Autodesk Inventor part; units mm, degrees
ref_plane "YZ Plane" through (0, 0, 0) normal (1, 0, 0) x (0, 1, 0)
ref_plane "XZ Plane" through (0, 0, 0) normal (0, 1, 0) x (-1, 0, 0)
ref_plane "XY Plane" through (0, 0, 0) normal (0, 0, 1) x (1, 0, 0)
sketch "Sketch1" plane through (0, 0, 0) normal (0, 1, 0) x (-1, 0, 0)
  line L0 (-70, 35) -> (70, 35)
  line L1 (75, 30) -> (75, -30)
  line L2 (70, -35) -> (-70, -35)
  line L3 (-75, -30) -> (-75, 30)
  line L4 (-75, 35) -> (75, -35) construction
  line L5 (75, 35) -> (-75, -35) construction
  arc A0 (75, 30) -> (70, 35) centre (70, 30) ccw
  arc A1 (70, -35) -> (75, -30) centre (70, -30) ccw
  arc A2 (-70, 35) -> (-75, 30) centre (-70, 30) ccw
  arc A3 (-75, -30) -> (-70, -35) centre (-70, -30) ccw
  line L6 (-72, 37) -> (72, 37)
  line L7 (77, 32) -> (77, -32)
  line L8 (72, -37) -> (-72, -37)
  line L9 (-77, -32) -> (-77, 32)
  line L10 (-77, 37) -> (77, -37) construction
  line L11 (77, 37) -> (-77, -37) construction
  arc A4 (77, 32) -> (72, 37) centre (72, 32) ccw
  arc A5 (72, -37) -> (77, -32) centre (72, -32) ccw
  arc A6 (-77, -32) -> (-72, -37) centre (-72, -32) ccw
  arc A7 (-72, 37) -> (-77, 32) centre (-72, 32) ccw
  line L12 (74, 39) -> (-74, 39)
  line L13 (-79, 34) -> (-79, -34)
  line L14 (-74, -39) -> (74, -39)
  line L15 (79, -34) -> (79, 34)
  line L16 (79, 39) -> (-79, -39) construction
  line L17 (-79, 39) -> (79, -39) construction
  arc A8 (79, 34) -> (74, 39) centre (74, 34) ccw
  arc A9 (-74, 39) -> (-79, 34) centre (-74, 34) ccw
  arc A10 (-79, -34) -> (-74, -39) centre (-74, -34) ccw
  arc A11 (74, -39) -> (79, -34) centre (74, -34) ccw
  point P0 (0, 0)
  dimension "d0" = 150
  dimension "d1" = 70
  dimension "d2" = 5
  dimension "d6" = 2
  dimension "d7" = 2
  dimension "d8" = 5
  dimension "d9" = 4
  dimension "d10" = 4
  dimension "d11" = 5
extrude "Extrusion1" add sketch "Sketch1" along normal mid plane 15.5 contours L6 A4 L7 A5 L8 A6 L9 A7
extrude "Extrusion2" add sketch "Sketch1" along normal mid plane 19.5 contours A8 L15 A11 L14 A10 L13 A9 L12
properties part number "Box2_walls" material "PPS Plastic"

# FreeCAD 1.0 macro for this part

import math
import FreeCAD as App
import Part
import Sketcher

V = App.Vector

doc = App.newDocument("Part")
params = doc.addObject("Spreadsheet::Sheet", "Params")
for row, (alias, value) in enumerate([
    ("sketch1_radius", "5 mm"),
    ("sketch1_height", "64 mm"),
    ("pad1_length", "15.5 mm"),
    ("sketch2_radius", "5 mm"),
    ("sketch2_width", "148 mm"),
    ("sketch2_height", "68 mm"),
    ("pad2_length", "19.5 mm"),
], start=1):
    params.set(f"A{row}", alias)
    params.set(f"B{row}", "=" + value)
    params.setAlias(f"B{row}", alias)

body = doc.addObject("PartDesign::Body", "Body")

sketch1 = body.newObject("Sketcher::SketchObject", "Sketch")
sketch1.AttachmentSupport = (doc.getObject("XZ_Plane"), [""])
sketch1.MapMode = "FlatFace"
sketch1.addGeometry(Part.LineSegment(V(-72, 37, 0), V(72, 37, 0)), False)
sketch1.addGeometry(Part.ArcOfCircle(Part.Circle(V(72, 32, 0), V(0, 0, 1), 5), math.radians(0), math.radians(90)), False)
sketch1.addGeometry(Part.LineSegment(V(77, 32, 0), V(77, -32, 0)), False)
sketch1.addGeometry(Part.ArcOfCircle(Part.Circle(V(72, -32, 0), V(0, 0, 1), 5), math.radians(-90), math.radians(0)), False)
sketch1.addGeometry(Part.LineSegment(V(72, -37, 0), V(-72, -37, 0)), False)
sketch1.addGeometry(Part.ArcOfCircle(Part.Circle(V(-72, -32, 0), V(0, 0, 1), 5), math.radians(180), math.radians(270)), False)
sketch1.addGeometry(Part.LineSegment(V(-77, -32, 0), V(-77, 32, 0)), False)
sketch1.addGeometry(Part.ArcOfCircle(Part.Circle(V(-72, 32, 0), V(0, 0, 1), 5), math.radians(90), math.radians(180)), False)
sketch1.addGeometry(Part.ArcOfCircle(Part.Circle(V(70, 30, 0), V(0, 0, 1), 5), math.radians(0), math.radians(90)), False)
sketch1.addGeometry(Part.LineSegment(V(70, 35, 0), V(-70, 35, 0)), False)
sketch1.addGeometry(Part.ArcOfCircle(Part.Circle(V(-70, 30, 0), V(0, 0, 1), 5), math.radians(90), math.radians(180)), False)
sketch1.addGeometry(Part.LineSegment(V(-75, 30, 0), V(-75, -30, 0)), False)
sketch1.addGeometry(Part.ArcOfCircle(Part.Circle(V(-70, -30, 0), V(0, 0, 1), 5), math.radians(180), math.radians(270)), False)
sketch1.addGeometry(Part.LineSegment(V(-70, -35, 0), V(70, -35, 0)), False)
sketch1.addGeometry(Part.ArcOfCircle(Part.Circle(V(70, -30, 0), V(0, 0, 1), 5), math.radians(-90), math.radians(0)), False)
sketch1.addGeometry(Part.LineSegment(V(75, -30, 0), V(75, 30, 0)), False)
sketch1.addConstraint(Sketcher.Constraint("Tangent", 0, 2, 1, 2))
sketch1.addConstraint(Sketcher.Constraint("Tangent", 1, 1, 2, 1))
sketch1.addConstraint(Sketcher.Constraint("Tangent", 2, 2, 3, 2))
sketch1.addConstraint(Sketcher.Constraint("Tangent", 3, 1, 4, 1))
sketch1.addConstraint(Sketcher.Constraint("Tangent", 4, 2, 5, 2))
sketch1.addConstraint(Sketcher.Constraint("Tangent", 5, 1, 6, 1))
sketch1.addConstraint(Sketcher.Constraint("Tangent", 6, 2, 7, 2))
sketch1.addConstraint(Sketcher.Constraint("Tangent", 7, 1, 0, 1))
sketch1.addConstraint(Sketcher.Constraint("Tangent", 8, 2, 9, 1))
sketch1.addConstraint(Sketcher.Constraint("Tangent", 9, 2, 10, 1))
sketch1.addConstraint(Sketcher.Constraint("Tangent", 10, 2, 11, 1))
sketch1.addConstraint(Sketcher.Constraint("Tangent", 11, 2, 12, 1))
sketch1.addConstraint(Sketcher.Constraint("Tangent", 12, 2, 13, 1))
sketch1.addConstraint(Sketcher.Constraint("Tangent", 13, 2, 14, 1))
sketch1.addConstraint(Sketcher.Constraint("Tangent", 14, 2, 15, 1))
sketch1.addConstraint(Sketcher.Constraint("Tangent", 15, 2, 8, 1))
sketch1.addConstraint(Sketcher.Constraint("Horizontal", 0))
sketch1.addConstraint(Sketcher.Constraint("Vertical", 2))
sketch1.addConstraint(Sketcher.Constraint("Horizontal", 4))
sketch1.addConstraint(Sketcher.Constraint("Vertical", 6))
sketch1.addConstraint(Sketcher.Constraint("Horizontal", 9))
sketch1.addConstraint(Sketcher.Constraint("Vertical", 11))
sketch1.addConstraint(Sketcher.Constraint("Horizontal", 13))
sketch1.addConstraint(Sketcher.Constraint("Vertical", 15))
sketch1.addConstraint(Sketcher.Constraint("Equal", 1, 3))
sketch1.addConstraint(Sketcher.Constraint("Equal", 3, 5))
sketch1.addConstraint(Sketcher.Constraint("Equal", 5, 7))
sketch1.addConstraint(Sketcher.Constraint("Equal", 7, 8))
sketch1.addConstraint(Sketcher.Constraint("Equal", 8, 10))
sketch1.addConstraint(Sketcher.Constraint("Equal", 10, 12))
sketch1.addConstraint(Sketcher.Constraint("Equal", 12, 14))
sketch1.addConstraint(Sketcher.Constraint("Symmetric", 1, 3, 5, 3, -1, 1))
sketch1.addConstraint(Sketcher.Constraint("Symmetric", 8, 3, 12, 3, -1, 1))
sketch1.addConstraint(Sketcher.Constraint("Radius", 1, 5.0))
sketch1.addConstraint(Sketcher.Constraint("DistanceX", -1, 1, 8, 3, 70.0))
sketch1.addConstraint(Sketcher.Constraint("DistanceX", 8, 3, 1, 3, 2.0))
sketch1.addConstraint(Sketcher.Constraint("DistanceY", 8, 3, 1, 3, 2.0))
sketch1.addConstraint(Sketcher.Constraint("DistanceY", 2, 2, 2, 1, 64.0))
sketch1.setExpression("Constraints[33]", "Params.sketch1_radius")
sketch1.setExpression("Constraints[37]", "Params.sketch1_height")
pad1 = body.newObject("PartDesign::Pad", "Pad")
pad1.Profile = sketch1
pad1.setExpression("Length", "Params.pad1_length")
pad1.Midplane = True

sketch2 = body.newObject("Sketcher::SketchObject", "Sketch001")
sketch2.AttachmentSupport = (doc.getObject("XZ_Plane"), [""])
sketch2.MapMode = "FlatFace"
sketch2.addGeometry(Part.ArcOfCircle(Part.Circle(V(-74, 34, 0), V(0, 0, 1), 5), math.radians(90), math.radians(180)), False)
sketch2.addGeometry(Part.LineSegment(V(-74, 39, 0), V(74, 39, 0)), False)
sketch2.addGeometry(Part.ArcOfCircle(Part.Circle(V(74, 34, 0), V(0, 0, 1), 5), math.radians(0), math.radians(90)), False)
sketch2.addGeometry(Part.LineSegment(V(79, 34, 0), V(79, -34, 0)), False)
sketch2.addGeometry(Part.ArcOfCircle(Part.Circle(V(74, -34, 0), V(0, 0, 1), 5), math.radians(-90), math.radians(0)), False)
sketch2.addGeometry(Part.LineSegment(V(74, -39, 0), V(-74, -39, 0)), False)
sketch2.addGeometry(Part.ArcOfCircle(Part.Circle(V(-74, -34, 0), V(0, 0, 1), 5), math.radians(180), math.radians(270)), False)
sketch2.addGeometry(Part.LineSegment(V(-79, -34, 0), V(-79, 34, 0)), False)
sketch2.addGeometry(Part.ArcOfCircle(Part.Circle(V(72, 32, 0), V(0, 0, 1), 5), math.radians(0), math.radians(90)), False)
sketch2.addGeometry(Part.LineSegment(V(72, 37, 0), V(-72, 37, 0)), False)
sketch2.addGeometry(Part.ArcOfCircle(Part.Circle(V(-72, 32, 0), V(0, 0, 1), 5), math.radians(90), math.radians(180)), False)
sketch2.addGeometry(Part.LineSegment(V(-77, 32, 0), V(-77, -32, 0)), False)
sketch2.addGeometry(Part.ArcOfCircle(Part.Circle(V(-72, -32, 0), V(0, 0, 1), 5), math.radians(180), math.radians(270)), False)
sketch2.addGeometry(Part.LineSegment(V(-72, -37, 0), V(72, -37, 0)), False)
sketch2.addGeometry(Part.ArcOfCircle(Part.Circle(V(72, -32, 0), V(0, 0, 1), 5), math.radians(-90), math.radians(0)), False)
sketch2.addGeometry(Part.LineSegment(V(77, -32, 0), V(77, 32, 0)), False)
sketch2.addConstraint(Sketcher.Constraint("Tangent", 0, 1, 1, 1))
sketch2.addConstraint(Sketcher.Constraint("Tangent", 1, 2, 2, 2))
sketch2.addConstraint(Sketcher.Constraint("Tangent", 2, 1, 3, 1))
sketch2.addConstraint(Sketcher.Constraint("Tangent", 3, 2, 4, 2))
sketch2.addConstraint(Sketcher.Constraint("Tangent", 4, 1, 5, 1))
sketch2.addConstraint(Sketcher.Constraint("Tangent", 5, 2, 6, 2))
sketch2.addConstraint(Sketcher.Constraint("Tangent", 6, 1, 7, 1))
sketch2.addConstraint(Sketcher.Constraint("Tangent", 7, 2, 0, 2))
sketch2.addConstraint(Sketcher.Constraint("Tangent", 8, 2, 9, 1))
sketch2.addConstraint(Sketcher.Constraint("Tangent", 9, 2, 10, 1))
sketch2.addConstraint(Sketcher.Constraint("Tangent", 10, 2, 11, 1))
sketch2.addConstraint(Sketcher.Constraint("Tangent", 11, 2, 12, 1))
sketch2.addConstraint(Sketcher.Constraint("Tangent", 12, 2, 13, 1))
sketch2.addConstraint(Sketcher.Constraint("Tangent", 13, 2, 14, 1))
sketch2.addConstraint(Sketcher.Constraint("Tangent", 14, 2, 15, 1))
sketch2.addConstraint(Sketcher.Constraint("Tangent", 15, 2, 8, 1))
sketch2.addConstraint(Sketcher.Constraint("Horizontal", 1))
sketch2.addConstraint(Sketcher.Constraint("Vertical", 3))
sketch2.addConstraint(Sketcher.Constraint("Horizontal", 5))
sketch2.addConstraint(Sketcher.Constraint("Vertical", 7))
sketch2.addConstraint(Sketcher.Constraint("Horizontal", 9))
sketch2.addConstraint(Sketcher.Constraint("Vertical", 11))
sketch2.addConstraint(Sketcher.Constraint("Horizontal", 13))
sketch2.addConstraint(Sketcher.Constraint("Vertical", 15))
sketch2.addConstraint(Sketcher.Constraint("Equal", 0, 2))
sketch2.addConstraint(Sketcher.Constraint("Equal", 2, 4))
sketch2.addConstraint(Sketcher.Constraint("Equal", 4, 6))
sketch2.addConstraint(Sketcher.Constraint("Equal", 6, 8))
sketch2.addConstraint(Sketcher.Constraint("Equal", 8, 10))
sketch2.addConstraint(Sketcher.Constraint("Equal", 10, 12))
sketch2.addConstraint(Sketcher.Constraint("Equal", 12, 14))
sketch2.addConstraint(Sketcher.Constraint("Symmetric", 0, 3, 4, 3, -1, 1))
sketch2.addConstraint(Sketcher.Constraint("Symmetric", 8, 3, 12, 3, -1, 1))
sketch2.addConstraint(Sketcher.Constraint("Radius", 0, 5.0))
sketch2.addConstraint(Sketcher.Constraint("DistanceX", 8, 3, 2, 3, 2.0))
sketch2.addConstraint(Sketcher.Constraint("DistanceY", 8, 3, 2, 3, 2.0))
sketch2.addConstraint(Sketcher.Constraint("DistanceX", 1, 1, 1, 2, 148.0))
sketch2.addConstraint(Sketcher.Constraint("DistanceY", 3, 2, 3, 1, 68.0))
sketch2.setExpression("Constraints[33]", "Params.sketch2_radius")
sketch2.setExpression("Constraints[36]", "Params.sketch2_width")
sketch2.setExpression("Constraints[37]", "Params.sketch2_height")
pad2 = body.newObject("PartDesign::Pad", "Pad001")
pad2.Profile = sketch2
pad2.setExpression("Length", "Params.pad2_length")
pad2.Midplane = True

doc.recompute()
